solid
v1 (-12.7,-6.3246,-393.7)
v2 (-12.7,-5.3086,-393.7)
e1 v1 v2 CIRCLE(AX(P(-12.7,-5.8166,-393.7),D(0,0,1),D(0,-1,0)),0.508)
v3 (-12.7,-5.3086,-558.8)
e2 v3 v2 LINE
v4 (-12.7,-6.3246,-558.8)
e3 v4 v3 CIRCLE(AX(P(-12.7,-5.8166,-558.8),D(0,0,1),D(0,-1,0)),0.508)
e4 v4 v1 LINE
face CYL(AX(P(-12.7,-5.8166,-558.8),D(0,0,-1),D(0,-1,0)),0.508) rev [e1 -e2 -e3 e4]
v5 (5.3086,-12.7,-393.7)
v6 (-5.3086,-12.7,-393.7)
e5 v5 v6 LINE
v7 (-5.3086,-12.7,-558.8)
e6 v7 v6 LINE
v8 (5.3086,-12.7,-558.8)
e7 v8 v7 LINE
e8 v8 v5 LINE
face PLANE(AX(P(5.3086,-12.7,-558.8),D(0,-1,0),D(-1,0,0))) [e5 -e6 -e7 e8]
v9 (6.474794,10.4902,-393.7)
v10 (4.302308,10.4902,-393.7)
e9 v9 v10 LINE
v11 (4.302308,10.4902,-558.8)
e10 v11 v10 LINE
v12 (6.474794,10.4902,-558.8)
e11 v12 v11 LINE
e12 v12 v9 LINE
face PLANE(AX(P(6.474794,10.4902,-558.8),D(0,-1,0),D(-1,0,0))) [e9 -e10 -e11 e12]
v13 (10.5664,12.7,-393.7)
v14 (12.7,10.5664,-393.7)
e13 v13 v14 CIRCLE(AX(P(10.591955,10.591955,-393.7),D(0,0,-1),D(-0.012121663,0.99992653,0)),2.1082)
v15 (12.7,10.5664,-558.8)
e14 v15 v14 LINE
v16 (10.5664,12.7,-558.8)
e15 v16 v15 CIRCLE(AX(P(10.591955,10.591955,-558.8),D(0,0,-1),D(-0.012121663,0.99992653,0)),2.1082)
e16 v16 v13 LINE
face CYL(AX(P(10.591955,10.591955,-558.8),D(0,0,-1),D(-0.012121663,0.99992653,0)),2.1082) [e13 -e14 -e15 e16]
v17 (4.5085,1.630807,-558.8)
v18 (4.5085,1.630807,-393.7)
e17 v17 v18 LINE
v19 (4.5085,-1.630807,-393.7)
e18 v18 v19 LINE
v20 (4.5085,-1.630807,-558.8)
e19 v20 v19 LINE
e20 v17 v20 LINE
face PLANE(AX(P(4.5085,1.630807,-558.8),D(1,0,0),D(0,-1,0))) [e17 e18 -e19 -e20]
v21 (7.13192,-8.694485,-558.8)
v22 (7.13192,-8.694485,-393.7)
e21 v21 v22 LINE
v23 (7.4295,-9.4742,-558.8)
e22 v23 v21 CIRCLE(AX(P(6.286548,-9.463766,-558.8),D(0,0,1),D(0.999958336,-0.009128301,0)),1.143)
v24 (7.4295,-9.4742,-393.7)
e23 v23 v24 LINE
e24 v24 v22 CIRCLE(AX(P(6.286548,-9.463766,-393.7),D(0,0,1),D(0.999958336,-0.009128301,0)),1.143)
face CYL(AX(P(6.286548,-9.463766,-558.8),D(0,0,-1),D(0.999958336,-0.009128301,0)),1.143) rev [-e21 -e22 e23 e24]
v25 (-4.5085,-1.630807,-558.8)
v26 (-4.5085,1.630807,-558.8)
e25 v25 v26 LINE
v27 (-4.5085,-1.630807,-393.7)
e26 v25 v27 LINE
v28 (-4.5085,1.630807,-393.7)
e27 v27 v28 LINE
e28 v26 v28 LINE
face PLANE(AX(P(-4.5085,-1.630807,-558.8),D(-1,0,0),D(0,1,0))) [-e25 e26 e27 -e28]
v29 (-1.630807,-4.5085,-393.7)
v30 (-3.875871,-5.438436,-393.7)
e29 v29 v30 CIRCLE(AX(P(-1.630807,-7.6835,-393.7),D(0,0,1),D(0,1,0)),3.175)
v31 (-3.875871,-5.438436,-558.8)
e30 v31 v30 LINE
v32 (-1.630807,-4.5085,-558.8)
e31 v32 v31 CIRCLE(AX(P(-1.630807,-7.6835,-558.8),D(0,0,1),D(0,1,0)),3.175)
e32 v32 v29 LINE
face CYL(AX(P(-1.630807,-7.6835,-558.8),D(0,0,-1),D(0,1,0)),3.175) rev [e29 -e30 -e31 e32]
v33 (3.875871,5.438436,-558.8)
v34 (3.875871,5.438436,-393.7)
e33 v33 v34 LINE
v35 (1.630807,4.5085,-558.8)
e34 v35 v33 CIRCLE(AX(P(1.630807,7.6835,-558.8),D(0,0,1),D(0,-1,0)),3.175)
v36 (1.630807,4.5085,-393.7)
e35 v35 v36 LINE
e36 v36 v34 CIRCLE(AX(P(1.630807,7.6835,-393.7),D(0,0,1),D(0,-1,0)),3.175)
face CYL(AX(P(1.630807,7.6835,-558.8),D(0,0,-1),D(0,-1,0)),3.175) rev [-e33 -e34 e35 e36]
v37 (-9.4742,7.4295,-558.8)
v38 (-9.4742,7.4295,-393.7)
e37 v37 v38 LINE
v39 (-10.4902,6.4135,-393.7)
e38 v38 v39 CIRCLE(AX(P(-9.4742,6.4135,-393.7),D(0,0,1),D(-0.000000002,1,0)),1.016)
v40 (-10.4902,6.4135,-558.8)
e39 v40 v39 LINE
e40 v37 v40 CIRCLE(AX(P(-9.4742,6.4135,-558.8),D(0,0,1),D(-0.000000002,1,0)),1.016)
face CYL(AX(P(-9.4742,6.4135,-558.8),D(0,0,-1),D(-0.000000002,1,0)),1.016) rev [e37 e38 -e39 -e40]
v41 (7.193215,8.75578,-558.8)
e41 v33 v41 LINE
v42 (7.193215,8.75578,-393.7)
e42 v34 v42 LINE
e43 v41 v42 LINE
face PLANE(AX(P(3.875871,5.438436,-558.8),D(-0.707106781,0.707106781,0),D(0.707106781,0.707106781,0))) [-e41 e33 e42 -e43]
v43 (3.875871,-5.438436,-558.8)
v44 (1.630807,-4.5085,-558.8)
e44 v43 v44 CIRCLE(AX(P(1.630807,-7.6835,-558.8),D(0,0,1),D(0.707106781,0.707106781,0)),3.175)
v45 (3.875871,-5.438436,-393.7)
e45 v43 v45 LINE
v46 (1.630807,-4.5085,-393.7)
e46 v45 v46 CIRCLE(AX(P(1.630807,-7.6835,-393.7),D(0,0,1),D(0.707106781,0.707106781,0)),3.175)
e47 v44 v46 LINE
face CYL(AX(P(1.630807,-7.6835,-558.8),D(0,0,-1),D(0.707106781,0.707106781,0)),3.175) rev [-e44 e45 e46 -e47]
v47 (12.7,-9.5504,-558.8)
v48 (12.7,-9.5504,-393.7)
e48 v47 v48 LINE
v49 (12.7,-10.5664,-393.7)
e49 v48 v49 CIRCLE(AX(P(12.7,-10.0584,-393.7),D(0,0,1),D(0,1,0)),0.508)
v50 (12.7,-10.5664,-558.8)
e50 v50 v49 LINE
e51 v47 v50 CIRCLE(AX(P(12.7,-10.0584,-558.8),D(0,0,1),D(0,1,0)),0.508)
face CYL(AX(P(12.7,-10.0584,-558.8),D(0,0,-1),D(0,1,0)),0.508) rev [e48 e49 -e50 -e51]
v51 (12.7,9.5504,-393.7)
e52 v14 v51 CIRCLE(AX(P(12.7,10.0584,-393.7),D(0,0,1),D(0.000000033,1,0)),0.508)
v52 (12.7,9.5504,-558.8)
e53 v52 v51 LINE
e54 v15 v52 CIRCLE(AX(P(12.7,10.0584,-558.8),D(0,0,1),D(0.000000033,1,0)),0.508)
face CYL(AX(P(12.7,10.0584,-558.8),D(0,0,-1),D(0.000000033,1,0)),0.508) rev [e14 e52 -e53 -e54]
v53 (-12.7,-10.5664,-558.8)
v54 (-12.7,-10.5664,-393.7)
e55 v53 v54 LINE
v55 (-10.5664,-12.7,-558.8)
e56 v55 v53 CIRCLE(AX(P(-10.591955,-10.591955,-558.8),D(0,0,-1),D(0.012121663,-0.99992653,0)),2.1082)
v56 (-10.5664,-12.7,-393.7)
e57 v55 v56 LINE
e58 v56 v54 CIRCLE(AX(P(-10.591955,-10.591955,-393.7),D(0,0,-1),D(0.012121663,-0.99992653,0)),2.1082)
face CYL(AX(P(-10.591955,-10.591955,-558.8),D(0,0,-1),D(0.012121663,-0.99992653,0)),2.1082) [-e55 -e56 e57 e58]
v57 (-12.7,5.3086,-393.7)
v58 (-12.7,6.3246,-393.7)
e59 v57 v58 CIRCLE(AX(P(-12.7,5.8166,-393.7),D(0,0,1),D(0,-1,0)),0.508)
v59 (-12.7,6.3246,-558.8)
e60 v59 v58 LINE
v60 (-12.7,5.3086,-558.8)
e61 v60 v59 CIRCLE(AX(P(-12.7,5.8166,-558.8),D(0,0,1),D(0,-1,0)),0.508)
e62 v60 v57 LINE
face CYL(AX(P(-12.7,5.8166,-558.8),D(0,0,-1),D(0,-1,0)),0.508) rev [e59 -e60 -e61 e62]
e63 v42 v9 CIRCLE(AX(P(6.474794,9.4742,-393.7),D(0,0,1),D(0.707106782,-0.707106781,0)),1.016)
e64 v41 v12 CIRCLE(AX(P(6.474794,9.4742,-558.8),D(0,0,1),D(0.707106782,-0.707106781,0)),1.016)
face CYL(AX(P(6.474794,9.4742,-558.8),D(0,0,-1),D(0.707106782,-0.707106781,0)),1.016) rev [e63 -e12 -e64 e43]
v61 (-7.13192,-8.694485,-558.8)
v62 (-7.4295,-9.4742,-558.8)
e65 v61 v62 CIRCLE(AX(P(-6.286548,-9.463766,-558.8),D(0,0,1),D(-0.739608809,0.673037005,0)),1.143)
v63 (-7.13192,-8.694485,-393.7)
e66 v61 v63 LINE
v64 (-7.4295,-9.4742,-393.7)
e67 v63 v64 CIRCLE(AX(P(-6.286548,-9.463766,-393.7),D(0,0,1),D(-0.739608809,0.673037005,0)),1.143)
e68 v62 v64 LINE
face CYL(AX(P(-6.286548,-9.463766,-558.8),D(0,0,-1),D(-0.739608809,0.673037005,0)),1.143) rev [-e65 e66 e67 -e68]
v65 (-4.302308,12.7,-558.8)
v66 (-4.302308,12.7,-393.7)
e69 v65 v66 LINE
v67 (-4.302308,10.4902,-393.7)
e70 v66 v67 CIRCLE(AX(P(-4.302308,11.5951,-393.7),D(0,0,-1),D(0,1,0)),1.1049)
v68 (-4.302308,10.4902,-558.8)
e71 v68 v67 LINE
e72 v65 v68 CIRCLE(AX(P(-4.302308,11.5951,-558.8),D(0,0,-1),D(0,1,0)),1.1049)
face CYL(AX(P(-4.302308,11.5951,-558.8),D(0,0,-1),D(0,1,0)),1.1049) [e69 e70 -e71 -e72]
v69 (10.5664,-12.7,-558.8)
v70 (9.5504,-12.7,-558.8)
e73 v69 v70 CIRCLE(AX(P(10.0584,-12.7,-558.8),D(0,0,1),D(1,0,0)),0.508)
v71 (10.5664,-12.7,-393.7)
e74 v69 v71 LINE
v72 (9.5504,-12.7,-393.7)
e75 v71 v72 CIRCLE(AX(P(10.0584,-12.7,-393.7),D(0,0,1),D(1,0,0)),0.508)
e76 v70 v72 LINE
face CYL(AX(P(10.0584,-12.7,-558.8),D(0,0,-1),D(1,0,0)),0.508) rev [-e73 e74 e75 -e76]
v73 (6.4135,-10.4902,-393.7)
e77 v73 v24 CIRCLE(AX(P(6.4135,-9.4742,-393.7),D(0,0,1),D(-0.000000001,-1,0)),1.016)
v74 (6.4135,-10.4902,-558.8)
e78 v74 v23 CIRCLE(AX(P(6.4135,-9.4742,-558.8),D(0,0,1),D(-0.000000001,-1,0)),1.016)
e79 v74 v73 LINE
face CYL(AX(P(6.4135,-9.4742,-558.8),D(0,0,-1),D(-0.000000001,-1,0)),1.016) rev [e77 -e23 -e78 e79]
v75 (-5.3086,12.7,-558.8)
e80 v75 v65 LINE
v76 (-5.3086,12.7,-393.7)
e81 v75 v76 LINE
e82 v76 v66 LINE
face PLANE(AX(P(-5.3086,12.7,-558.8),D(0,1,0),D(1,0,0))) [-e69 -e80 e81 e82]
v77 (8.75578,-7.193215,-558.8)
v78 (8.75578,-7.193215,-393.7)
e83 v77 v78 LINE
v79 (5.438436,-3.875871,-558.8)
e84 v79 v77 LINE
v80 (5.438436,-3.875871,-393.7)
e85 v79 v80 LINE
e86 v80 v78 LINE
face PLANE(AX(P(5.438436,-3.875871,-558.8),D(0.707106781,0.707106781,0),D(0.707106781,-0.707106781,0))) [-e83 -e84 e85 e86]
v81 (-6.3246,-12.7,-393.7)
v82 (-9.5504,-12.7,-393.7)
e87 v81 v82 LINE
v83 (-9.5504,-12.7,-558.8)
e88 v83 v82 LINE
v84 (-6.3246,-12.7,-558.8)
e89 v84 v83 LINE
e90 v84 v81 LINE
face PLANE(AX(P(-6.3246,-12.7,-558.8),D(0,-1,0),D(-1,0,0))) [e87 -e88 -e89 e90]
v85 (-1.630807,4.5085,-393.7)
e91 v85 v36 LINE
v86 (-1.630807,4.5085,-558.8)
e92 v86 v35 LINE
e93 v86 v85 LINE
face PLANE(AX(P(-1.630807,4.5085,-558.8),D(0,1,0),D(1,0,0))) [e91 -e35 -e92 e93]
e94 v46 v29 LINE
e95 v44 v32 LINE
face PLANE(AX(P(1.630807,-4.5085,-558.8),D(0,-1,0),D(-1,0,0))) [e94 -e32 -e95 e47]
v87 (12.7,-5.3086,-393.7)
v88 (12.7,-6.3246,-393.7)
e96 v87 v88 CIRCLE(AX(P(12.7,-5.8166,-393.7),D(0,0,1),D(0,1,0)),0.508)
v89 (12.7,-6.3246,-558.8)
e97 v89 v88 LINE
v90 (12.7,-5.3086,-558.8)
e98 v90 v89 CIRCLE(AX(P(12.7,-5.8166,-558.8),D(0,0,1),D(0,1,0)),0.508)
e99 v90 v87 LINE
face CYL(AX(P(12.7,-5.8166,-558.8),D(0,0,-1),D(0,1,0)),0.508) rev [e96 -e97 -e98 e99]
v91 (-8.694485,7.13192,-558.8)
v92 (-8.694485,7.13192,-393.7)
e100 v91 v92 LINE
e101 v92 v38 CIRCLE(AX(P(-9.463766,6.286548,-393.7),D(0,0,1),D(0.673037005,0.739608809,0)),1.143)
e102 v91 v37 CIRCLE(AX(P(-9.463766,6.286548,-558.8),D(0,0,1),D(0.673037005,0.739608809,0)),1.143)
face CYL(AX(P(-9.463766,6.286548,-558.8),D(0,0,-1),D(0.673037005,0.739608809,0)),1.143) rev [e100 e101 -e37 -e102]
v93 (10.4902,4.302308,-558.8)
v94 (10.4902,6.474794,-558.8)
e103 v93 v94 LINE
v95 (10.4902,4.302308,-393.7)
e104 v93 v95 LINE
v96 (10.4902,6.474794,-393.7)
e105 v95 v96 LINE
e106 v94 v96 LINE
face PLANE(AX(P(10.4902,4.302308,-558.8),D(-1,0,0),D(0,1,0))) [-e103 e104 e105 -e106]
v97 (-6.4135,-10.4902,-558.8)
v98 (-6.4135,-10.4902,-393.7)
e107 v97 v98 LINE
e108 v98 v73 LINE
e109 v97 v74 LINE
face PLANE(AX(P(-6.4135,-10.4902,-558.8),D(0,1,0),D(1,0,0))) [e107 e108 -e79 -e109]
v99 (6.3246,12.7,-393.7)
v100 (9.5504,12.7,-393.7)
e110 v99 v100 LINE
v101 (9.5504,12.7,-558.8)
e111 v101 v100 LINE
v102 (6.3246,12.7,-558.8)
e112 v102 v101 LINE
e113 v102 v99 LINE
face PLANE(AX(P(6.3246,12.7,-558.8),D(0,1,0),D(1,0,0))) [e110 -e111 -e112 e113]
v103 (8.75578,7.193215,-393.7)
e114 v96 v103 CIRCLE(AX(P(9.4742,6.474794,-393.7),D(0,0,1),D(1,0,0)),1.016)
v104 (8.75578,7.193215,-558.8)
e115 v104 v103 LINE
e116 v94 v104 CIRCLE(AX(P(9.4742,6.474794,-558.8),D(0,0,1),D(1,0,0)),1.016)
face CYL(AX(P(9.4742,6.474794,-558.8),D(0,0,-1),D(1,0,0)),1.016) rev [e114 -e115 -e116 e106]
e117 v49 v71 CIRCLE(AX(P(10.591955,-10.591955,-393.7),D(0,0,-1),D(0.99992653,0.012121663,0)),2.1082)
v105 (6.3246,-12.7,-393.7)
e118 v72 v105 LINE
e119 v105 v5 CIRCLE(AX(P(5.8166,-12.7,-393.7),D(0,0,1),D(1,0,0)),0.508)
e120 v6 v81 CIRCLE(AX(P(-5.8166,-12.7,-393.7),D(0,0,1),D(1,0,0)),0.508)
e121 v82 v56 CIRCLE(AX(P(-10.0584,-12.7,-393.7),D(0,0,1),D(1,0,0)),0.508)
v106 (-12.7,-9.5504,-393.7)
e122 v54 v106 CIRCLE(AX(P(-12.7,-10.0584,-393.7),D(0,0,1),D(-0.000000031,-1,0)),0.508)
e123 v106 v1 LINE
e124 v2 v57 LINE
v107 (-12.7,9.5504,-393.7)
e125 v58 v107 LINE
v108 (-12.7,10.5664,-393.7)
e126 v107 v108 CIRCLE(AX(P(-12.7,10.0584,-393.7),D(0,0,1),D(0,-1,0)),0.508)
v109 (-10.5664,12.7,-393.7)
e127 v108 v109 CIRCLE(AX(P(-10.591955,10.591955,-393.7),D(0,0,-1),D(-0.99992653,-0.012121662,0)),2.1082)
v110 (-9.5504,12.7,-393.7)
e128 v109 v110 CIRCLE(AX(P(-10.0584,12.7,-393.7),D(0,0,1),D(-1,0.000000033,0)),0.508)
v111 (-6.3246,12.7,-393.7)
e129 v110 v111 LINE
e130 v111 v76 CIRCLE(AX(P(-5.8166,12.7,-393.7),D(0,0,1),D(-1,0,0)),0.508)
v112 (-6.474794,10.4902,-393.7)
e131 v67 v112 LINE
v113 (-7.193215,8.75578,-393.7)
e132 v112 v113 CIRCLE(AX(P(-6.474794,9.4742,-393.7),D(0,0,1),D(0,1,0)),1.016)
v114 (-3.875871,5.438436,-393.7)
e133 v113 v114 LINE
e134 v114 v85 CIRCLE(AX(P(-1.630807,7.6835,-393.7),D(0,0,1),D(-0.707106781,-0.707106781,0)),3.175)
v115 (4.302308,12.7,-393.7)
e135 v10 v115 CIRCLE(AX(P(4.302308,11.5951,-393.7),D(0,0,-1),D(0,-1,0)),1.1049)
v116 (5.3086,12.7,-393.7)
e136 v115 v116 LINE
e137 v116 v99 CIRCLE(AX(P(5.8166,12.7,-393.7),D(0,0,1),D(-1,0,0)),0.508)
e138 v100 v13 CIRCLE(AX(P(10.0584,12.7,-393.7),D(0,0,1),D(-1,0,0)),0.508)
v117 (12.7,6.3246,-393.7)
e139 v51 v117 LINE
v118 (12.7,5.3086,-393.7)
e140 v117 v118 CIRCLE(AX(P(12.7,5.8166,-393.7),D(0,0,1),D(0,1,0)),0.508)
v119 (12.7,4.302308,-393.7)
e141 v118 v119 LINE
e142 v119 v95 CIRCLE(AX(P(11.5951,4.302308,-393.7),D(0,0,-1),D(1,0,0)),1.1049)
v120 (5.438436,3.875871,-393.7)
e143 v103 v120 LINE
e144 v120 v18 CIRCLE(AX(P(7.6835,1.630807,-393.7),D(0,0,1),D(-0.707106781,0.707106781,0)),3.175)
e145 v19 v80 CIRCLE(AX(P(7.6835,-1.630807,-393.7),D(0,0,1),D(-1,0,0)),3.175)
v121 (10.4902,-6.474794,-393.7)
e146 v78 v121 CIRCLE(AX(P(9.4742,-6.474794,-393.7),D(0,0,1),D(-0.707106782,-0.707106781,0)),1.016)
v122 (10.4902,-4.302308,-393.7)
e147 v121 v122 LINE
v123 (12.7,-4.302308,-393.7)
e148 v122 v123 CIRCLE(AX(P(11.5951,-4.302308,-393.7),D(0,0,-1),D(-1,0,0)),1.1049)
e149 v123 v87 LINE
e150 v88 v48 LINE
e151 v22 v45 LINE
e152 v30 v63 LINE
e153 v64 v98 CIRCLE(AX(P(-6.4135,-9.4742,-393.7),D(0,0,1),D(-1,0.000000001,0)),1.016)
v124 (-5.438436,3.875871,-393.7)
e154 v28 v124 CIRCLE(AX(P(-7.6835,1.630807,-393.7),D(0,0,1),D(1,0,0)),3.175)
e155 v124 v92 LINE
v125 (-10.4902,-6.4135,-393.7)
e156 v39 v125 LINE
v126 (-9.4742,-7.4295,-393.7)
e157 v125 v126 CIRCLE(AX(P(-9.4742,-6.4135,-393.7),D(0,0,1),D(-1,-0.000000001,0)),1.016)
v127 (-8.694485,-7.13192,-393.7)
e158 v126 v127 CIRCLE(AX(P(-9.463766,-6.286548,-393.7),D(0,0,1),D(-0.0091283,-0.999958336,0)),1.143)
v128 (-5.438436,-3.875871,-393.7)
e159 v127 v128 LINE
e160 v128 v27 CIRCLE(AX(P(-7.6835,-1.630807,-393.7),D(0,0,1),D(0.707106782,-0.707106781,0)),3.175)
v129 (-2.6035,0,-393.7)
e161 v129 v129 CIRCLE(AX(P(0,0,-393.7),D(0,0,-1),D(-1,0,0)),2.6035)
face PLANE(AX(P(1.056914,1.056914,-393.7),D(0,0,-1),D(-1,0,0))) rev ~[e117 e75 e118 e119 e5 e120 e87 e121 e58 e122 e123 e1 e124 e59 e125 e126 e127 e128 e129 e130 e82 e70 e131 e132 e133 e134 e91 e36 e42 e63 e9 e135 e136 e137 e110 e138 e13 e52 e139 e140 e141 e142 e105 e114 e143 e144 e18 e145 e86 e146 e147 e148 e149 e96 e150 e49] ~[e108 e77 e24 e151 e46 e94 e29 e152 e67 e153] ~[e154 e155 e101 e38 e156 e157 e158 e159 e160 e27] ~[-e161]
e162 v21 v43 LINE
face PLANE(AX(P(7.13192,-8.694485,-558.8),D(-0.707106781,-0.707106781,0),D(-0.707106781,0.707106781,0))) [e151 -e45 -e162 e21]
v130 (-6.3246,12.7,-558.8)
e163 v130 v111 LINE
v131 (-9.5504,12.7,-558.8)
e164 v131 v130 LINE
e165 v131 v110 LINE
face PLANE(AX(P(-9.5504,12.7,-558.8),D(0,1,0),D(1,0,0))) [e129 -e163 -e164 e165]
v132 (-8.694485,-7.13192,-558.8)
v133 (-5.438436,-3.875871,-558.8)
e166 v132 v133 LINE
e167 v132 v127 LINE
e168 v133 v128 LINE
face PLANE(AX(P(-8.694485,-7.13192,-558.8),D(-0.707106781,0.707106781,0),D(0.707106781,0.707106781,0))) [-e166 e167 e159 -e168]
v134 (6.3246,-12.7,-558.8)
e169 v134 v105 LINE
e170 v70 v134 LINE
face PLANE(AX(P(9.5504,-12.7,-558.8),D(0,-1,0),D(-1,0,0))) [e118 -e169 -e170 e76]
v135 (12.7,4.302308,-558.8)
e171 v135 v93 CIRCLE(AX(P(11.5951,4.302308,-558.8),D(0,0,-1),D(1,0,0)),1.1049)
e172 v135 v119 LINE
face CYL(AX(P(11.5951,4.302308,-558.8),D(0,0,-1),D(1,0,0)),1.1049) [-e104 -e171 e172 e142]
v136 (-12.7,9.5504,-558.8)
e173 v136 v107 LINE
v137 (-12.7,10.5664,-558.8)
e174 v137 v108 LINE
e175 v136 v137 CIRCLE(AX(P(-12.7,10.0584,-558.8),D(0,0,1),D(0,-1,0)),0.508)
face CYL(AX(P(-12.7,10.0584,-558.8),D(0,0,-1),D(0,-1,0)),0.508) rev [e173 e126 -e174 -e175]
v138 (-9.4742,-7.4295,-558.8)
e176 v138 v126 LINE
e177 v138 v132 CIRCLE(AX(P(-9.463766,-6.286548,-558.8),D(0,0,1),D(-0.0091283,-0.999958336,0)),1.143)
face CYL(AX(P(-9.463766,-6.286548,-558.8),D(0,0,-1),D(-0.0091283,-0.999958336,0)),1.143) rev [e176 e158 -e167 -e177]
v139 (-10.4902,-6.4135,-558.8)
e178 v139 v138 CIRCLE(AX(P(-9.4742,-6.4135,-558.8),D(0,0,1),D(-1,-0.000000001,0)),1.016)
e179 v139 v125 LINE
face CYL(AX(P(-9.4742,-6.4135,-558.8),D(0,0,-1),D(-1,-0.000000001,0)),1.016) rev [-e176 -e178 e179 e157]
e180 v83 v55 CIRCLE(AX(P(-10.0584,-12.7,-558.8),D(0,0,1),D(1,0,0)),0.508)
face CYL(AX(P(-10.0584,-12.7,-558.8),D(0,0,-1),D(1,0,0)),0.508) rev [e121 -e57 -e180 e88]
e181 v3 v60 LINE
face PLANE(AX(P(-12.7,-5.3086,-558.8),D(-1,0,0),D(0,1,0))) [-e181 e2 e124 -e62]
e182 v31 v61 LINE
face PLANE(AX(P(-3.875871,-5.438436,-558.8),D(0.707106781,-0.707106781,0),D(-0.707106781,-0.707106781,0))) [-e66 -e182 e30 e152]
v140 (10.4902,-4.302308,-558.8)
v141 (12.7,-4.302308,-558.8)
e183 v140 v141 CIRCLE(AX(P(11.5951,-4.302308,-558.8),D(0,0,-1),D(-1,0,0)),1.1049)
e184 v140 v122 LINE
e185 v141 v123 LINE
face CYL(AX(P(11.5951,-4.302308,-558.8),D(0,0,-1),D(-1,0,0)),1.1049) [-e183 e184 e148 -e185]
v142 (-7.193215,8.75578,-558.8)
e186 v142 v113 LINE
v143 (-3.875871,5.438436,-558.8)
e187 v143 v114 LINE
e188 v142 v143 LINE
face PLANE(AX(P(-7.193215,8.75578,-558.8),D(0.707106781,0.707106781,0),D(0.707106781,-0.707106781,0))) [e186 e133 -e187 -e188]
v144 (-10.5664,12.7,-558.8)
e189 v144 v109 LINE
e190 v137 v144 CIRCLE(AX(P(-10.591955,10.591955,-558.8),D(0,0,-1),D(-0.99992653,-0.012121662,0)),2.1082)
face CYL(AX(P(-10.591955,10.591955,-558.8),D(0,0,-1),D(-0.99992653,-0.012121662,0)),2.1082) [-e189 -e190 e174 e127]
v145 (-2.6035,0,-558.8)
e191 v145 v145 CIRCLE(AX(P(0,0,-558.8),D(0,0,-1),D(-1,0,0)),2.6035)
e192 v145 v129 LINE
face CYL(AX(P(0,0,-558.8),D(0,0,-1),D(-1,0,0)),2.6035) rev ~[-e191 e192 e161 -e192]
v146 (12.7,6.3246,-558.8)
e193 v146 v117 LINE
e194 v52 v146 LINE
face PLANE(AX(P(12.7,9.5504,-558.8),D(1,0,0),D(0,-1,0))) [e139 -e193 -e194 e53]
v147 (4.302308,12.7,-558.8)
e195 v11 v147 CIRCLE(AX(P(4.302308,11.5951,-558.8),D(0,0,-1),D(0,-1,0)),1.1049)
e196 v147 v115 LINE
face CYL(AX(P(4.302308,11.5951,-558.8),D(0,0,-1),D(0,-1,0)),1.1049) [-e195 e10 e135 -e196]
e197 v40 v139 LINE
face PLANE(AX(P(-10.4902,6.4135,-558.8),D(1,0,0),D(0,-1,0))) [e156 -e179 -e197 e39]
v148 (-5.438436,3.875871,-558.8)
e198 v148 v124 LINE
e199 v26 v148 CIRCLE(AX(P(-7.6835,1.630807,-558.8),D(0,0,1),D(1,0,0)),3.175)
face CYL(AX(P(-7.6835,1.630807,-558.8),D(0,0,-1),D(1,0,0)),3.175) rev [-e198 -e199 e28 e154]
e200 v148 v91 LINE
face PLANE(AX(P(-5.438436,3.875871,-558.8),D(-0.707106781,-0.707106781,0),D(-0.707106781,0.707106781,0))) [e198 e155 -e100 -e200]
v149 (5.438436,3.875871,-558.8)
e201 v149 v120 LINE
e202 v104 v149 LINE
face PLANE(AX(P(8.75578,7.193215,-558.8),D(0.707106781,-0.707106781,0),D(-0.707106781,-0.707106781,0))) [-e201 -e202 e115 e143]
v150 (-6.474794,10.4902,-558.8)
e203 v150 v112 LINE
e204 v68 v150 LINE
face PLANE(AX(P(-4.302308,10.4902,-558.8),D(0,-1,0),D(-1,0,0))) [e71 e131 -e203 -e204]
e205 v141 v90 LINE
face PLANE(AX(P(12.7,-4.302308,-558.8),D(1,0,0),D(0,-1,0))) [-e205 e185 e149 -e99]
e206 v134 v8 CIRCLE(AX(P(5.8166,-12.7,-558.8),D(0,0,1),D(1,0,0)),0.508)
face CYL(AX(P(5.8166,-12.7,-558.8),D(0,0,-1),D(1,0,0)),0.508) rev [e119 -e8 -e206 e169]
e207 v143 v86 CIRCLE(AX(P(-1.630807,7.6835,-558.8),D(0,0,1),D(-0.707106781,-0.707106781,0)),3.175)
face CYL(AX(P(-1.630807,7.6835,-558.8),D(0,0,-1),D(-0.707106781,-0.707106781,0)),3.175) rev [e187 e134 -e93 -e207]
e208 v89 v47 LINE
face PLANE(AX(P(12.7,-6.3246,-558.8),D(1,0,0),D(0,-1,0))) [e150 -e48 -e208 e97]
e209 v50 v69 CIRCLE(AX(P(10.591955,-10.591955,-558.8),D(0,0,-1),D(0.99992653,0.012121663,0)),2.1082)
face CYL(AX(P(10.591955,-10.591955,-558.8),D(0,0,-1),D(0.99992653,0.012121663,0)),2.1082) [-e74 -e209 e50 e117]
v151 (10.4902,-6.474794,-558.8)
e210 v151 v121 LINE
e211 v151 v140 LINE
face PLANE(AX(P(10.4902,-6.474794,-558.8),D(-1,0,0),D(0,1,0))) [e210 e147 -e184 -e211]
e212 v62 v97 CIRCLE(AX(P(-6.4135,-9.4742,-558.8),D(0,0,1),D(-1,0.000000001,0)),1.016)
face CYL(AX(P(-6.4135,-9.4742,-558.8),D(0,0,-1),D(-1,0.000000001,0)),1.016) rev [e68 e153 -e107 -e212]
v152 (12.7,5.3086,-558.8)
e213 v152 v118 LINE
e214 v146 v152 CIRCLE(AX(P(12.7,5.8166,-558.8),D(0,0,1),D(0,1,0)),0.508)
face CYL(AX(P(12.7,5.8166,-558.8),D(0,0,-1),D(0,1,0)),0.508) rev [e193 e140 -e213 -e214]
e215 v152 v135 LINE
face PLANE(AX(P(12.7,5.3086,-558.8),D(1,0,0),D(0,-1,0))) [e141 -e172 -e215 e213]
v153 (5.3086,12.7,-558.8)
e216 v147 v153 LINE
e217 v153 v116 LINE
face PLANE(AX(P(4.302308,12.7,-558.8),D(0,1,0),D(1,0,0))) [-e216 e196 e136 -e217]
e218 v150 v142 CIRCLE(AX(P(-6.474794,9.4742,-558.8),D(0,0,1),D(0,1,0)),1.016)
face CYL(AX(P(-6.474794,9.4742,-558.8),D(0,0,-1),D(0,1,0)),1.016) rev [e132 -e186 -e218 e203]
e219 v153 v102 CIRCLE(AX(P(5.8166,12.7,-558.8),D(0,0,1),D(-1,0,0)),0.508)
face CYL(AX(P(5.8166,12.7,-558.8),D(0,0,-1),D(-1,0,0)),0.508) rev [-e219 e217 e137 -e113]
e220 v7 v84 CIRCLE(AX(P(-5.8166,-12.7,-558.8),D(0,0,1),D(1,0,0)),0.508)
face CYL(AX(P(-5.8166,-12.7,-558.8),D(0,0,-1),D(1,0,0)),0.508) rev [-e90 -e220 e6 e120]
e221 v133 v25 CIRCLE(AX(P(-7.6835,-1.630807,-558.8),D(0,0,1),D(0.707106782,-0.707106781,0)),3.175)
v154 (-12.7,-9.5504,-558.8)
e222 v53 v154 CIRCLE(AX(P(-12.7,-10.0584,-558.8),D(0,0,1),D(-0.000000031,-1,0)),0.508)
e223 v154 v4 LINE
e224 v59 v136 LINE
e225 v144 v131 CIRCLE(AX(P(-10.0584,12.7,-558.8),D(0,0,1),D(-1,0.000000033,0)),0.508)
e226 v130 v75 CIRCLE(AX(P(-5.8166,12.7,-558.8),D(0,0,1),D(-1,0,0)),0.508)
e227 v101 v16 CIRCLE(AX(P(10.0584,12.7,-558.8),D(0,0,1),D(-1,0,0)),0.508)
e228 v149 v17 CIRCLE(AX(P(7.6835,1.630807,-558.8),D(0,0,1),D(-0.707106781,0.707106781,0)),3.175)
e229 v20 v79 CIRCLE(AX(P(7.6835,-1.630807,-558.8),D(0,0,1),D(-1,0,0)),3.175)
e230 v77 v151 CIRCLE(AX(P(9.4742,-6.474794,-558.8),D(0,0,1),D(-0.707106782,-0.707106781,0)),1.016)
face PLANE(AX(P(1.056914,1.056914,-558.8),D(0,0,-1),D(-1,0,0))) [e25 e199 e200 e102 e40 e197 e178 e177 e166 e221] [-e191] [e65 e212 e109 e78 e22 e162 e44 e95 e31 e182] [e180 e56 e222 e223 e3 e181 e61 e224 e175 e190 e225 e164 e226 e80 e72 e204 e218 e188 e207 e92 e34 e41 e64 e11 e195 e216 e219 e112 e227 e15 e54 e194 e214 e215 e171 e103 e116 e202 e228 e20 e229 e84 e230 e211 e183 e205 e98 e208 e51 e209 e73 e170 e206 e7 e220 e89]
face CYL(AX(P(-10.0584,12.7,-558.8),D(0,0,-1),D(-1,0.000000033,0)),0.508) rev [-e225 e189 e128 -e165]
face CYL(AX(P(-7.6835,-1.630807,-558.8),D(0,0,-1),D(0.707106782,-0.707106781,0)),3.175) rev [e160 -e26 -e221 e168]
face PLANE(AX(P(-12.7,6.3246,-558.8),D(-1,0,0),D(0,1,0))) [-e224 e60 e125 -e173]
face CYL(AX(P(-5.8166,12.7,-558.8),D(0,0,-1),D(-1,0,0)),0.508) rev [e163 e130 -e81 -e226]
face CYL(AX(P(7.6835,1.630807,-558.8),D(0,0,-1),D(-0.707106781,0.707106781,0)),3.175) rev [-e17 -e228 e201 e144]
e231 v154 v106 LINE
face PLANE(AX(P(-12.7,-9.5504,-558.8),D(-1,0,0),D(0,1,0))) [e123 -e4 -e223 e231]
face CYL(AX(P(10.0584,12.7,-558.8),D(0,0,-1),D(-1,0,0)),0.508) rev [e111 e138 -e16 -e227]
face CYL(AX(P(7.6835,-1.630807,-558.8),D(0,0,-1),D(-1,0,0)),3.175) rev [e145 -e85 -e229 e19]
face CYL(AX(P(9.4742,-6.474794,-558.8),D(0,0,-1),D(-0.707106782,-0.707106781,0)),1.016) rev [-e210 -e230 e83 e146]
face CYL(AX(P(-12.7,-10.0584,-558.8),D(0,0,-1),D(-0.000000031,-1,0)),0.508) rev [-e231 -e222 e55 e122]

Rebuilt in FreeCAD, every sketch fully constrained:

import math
import FreeCAD as App
import Part
import Sketcher
Q = App.Units.Quantity

doc = App.newDocument("Part")
body = doc.addObject("PartDesign::Body", "Body")

sketch1 = body.newObject("Sketcher::SketchObject", "Sketch")
sketch1.AttachmentSupport = (doc.getObject("XY_Plane"), [""])
sketch1.MapMode = "FlatFace"
sketch1.AttachmentOffset = App.Placement(App.Vector(0, 0, -22 * 25.4), App.Rotation())
sketch1.addGeometry(Part.LineSegment(App.Vector(-12.7, -9.6, 0), App.Vector(-12.7, -6.3, 0)), False)
sketch1.addGeometry(Part.ArcOfCircle(Part.Circle(App.Vector(-12.7, -5.8, 0), App.Vector(0, 0, 1), 0.5), math.radians(-90), math.radians(90)), False)
sketch1.addGeometry(Part.LineSegment(App.Vector(-12.7, -5.3, 0), App.Vector(-12.7, 5.3, 0)), False)
sketch1.addGeometry(Part.ArcOfCircle(Part.Circle(App.Vector(-12.7, 5.8, 0), App.Vector(0, 0, 1), 0.5), math.radians(-90), math.radians(90)), False)
sketch1.addGeometry(Part.LineSegment(App.Vector(-12.7, 6.3, 0), App.Vector(-12.7, 9.6, 0)), False)
sketch1.addGeometry(Part.ArcOfCircle(Part.Circle(App.Vector(-12.7, 10.1, 0), App.Vector(0, 0, 1), 0.5), math.radians(-90), math.radians(90)), False)
sketch1.addGeometry(Part.ArcOfCircle(Part.Circle(App.Vector(-10.6, 10.6, 0), App.Vector(0, 0, 1), 2.1), math.radians(89), math.radians(181)), False)
sketch1.addGeometry(Part.ArcOfCircle(Part.Circle(App.Vector(-10.1, 12.7, 0), App.Vector(0, 0, 1), 0.5), math.radians(180), math.radians(360)), False)
sketch1.addGeometry(Part.LineSegment(App.Vector(-9.6, 12.7, 0), App.Vector(-6.3, 12.7, 0)), False)
sketch1.addGeometry(Part.ArcOfCircle(Part.Circle(App.Vector(-5.8, 12.7, 0), App.Vector(0, 0, 1), 0.5), math.radians(180), math.radians(360)), False)
sketch1.addGeometry(Part.LineSegment(App.Vector(-5.3, 12.7, 0), App.Vector(-4.3, 12.7, 0)), False)
sketch1.addGeometry(Part.ArcOfCircle(Part.Circle(App.Vector(-4.3, 11.6, 0), App.Vector(0, 0, 1), 1.1), math.radians(-90), math.radians(90)), False)
sketch1.addGeometry(Part.LineSegment(App.Vector(-4.3, 10.5, 0), App.Vector(-6.5, 10.5, 0)), False)
sketch1.addGeometry(Part.ArcOfCircle(Part.Circle(App.Vector(-6.5, 9.5, 0), App.Vector(0, 0, 1), 1), math.radians(90), math.radians(225)), False)
sketch1.addGeometry(Part.LineSegment(App.Vector(-7.2, 8.8, 0), App.Vector(-3.9, 5.4, 0)), False)
sketch1.addGeometry(Part.ArcOfCircle(Part.Circle(App.Vector(-1.6, 7.7, 0), App.Vector(0, 0, 1), 3.2), math.radians(-135), math.radians(-90)), False)
sketch1.addGeometry(Part.LineSegment(App.Vector(-1.6, 4.5, 0), App.Vector(1.6, 4.5, 0)), False)
sketch1.addGeometry(Part.ArcOfCircle(Part.Circle(App.Vector(1.6, 7.7, 0), App.Vector(0, 0, 1), 3.2), math.radians(-90), math.radians(-45)), False)
sketch1.addGeometry(Part.LineSegment(App.Vector(3.9, 5.4, 0), App.Vector(7.2, 8.8, 0)), False)
sketch1.addGeometry(Part.ArcOfCircle(Part.Circle(App.Vector(6.5, 9.5, 0), App.Vector(0, 0, 1), 1), math.radians(-45), math.radians(90)), False)
sketch1.addGeometry(Part.LineSegment(App.Vector(6.5, 10.5, 0), App.Vector(4.3, 10.5, 0)), False)
sketch1.addGeometry(Part.ArcOfCircle(Part.Circle(App.Vector(4.3, 11.6, 0), App.Vector(0, 0, 1), 1.1), math.radians(90), math.radians(270)), False)
sketch1.addGeometry(Part.LineSegment(App.Vector(4.3, 12.7, 0), App.Vector(5.3, 12.7, 0)), False)
sketch1.addGeometry(Part.ArcOfCircle(Part.Circle(App.Vector(5.8, 12.7, 0), App.Vector(0, 0, 1), 0.5), math.radians(180), math.radians(360)), False)
sketch1.addGeometry(Part.LineSegment(App.Vector(6.3, 12.7, 0), App.Vector(9.6, 12.7, 0)), False)
sketch1.addGeometry(Part.ArcOfCircle(Part.Circle(App.Vector(10.1, 12.7, 0), App.Vector(0, 0, 1), 0.5), math.radians(180), math.radians(360)), False)
sketch1.addGeometry(Part.ArcOfCircle(Part.Circle(App.Vector(10.6, 10.6, 0), App.Vector(0, 0, 1), 2.1), math.radians(-1), math.radians(91)), False)
sketch1.addGeometry(Part.ArcOfCircle(Part.Circle(App.Vector(12.7, 10.1, 0), App.Vector(0, 0, 1), 0.5), math.radians(90), math.radians(270)), False)
sketch1.addGeometry(Part.LineSegment(App.Vector(12.7, 9.6, 0), App.Vector(12.7, 6.3, 0)), False)
sketch1.addGeometry(Part.ArcOfCircle(Part.Circle(App.Vector(12.7, 5.8, 0), App.Vector(0, 0, 1), 0.5), math.radians(90), math.radians(270)), False)
sketch1.addGeometry(Part.LineSegment(App.Vector(12.7, 5.3, 0), App.Vector(12.7, 4.3, 0)), False)
sketch1.addGeometry(Part.ArcOfCircle(Part.Circle(App.Vector(11.6, 4.3, 0), App.Vector(0, 0, 1), 1.1), math.radians(180), math.radians(360)), False)
sketch1.addGeometry(Part.LineSegment(App.Vector(10.5, 4.3, 0), App.Vector(10.5, 6.5, 0)), False)
sketch1.addGeometry(Part.ArcOfCircle(Part.Circle(App.Vector(9.5, 6.5, 0), App.Vector(0, 0, 1), 1), math.radians(0), math.radians(135)), False)
sketch1.addGeometry(Part.LineSegment(App.Vector(8.8, 7.2, 0), App.Vector(5.4, 3.9, 0)), False)
sketch1.addGeometry(Part.ArcOfCircle(Part.Circle(App.Vector(7.7, 1.6, 0), App.Vector(0, 0, 1), 3.2), math.radians(135), math.radians(180)), False)
sketch1.addGeometry(Part.LineSegment(App.Vector(4.5, 1.6, 0), App.Vector(4.5, -1.6, 0)), False)
sketch1.addGeometry(Part.ArcOfCircle(Part.Circle(App.Vector(7.7, -1.6, 0), App.Vector(0, 0, 1), 3.2), math.radians(180), math.radians(225)), False)
sketch1.addGeometry(Part.LineSegment(App.Vector(5.4, -3.9, 0), App.Vector(8.8, -7.2, 0)), False)
sketch1.addGeometry(Part.ArcOfCircle(Part.Circle(App.Vector(9.5, -6.5, 0), App.Vector(0, 0, 1), 1), math.radians(-135), math.radians(0)), False)
sketch1.addGeometry(Part.LineSegment(App.Vector(10.5, -6.5, 0), App.Vector(10.5, -4.3, 0)), False)
sketch1.addGeometry(Part.ArcOfCircle(Part.Circle(App.Vector(11.6, -4.3, 0), App.Vector(0, 0, 1), 1.1), math.radians(0), math.radians(180)), False)
sketch1.addGeometry(Part.LineSegment(App.Vector(12.7, -4.3, 0), App.Vector(12.7, -5.3, 0)), False)
sketch1.addGeometry(Part.ArcOfCircle(Part.Circle(App.Vector(12.7, -5.8, 0), App.Vector(0, 0, 1), 0.5), math.radians(90), math.radians(270)), False)
sketch1.addGeometry(Part.LineSegment(App.Vector(12.7, -6.3, 0), App.Vector(12.7, -9.6, 0)), False)
sketch1.addGeometry(Part.ArcOfCircle(Part.Circle(App.Vector(12.7, -10.1, 0), App.Vector(0, 0, 1), 0.5), math.radians(90), math.radians(270)), False)
sketch1.addGeometry(Part.ArcOfCircle(Part.Circle(App.Vector(10.6, -10.6, 0), App.Vector(0, 0, 1), 2.1), math.radians(-91), math.radians(1)), False)
sketch1.addGeometry(Part.ArcOfCircle(Part.Circle(App.Vector(10.1, -12.7, 0), App.Vector(0, 0, 1), 0.5), math.radians(0), math.radians(180)), False)
sketch1.addGeometry(Part.LineSegment(App.Vector(9.6, -12.7, 0), App.Vector(6.3, -12.7, 0)), False)
sketch1.addGeometry(Part.ArcOfCircle(Part.Circle(App.Vector(5.8, -12.7, 0), App.Vector(0, 0, 1), 0.5), math.radians(0), math.radians(180)), False)
sketch1.addGeometry(Part.LineSegment(App.Vector(5.3, -12.7, 0), App.Vector(-5.3, -12.7, 0)), False)
sketch1.addGeometry(Part.ArcOfCircle(Part.Circle(App.Vector(-5.8, -12.7, 0), App.Vector(0, 0, 1), 0.5), math.radians(0), math.radians(180)), False)
sketch1.addGeometry(Part.LineSegment(App.Vector(-6.3, -12.7, 0), App.Vector(-9.6, -12.7, 0)), False)
sketch1.addGeometry(Part.ArcOfCircle(Part.Circle(App.Vector(-10.1, -12.7, 0), App.Vector(0, 0, 1), 0.5), math.radians(0), math.radians(180)), False)
sketch1.addGeometry(Part.ArcOfCircle(Part.Circle(App.Vector(-10.6, -10.6, 0), App.Vector(0, 0, 1), 2.1), math.radians(179), math.radians(271)), False)
sketch1.addGeometry(Part.ArcOfCircle(Part.Circle(App.Vector(-12.7, -10.1, 0), App.Vector(0, 0, 1), 0.5), math.radians(-90), math.radians(90)), False)
sketch1.addGeometry(Part.ArcOfCircle(Part.Circle(App.Vector(-1.6, -7.7, 0), App.Vector(0, 0, 1), 3.2), math.radians(90), math.radians(135)), False)
sketch1.addGeometry(Part.LineSegment(App.Vector(-3.9, -5.4, 0), App.Vector(-7.1, -8.7, 0)), False)
sketch1.addGeometry(Part.ArcOfCircle(Part.Circle(App.Vector(-6.3, -9.5, 0), App.Vector(0, 0, 1), 1.1), math.radians(138), math.radians(181)), False)
sketch1.addGeometry(Part.ArcOfCircle(Part.Circle(App.Vector(-6.4, -9.5, 0), App.Vector(0, 0, 1), 1), math.radians(180), math.radians(270)), False)
sketch1.addGeometry(Part.LineSegment(App.Vector(-6.4, -10.5, 0), App.Vector(6.4, -10.5, 0)), False)
sketch1.addGeometry(Part.ArcOfCircle(Part.Circle(App.Vector(6.4, -9.5, 0), App.Vector(0, 0, 1), 1), math.radians(-90), math.radians(0)), False)
sketch1.addGeometry(Part.ArcOfCircle(Part.Circle(App.Vector(6.3, -9.5, 0), App.Vector(0, 0, 1), 1.1), math.radians(-1), math.radians(42)), False)
sketch1.addGeometry(Part.LineSegment(App.Vector(7.1, -8.7, 0), App.Vector(3.9, -5.4, 0)), False)
sketch1.addGeometry(Part.ArcOfCircle(Part.Circle(App.Vector(1.6, -7.7, 0), App.Vector(0, 0, 1), 3.2), math.radians(45), math.radians(90)), False)
sketch1.addGeometry(Part.LineSegment(App.Vector(1.6, -4.5, 0), App.Vector(-1.6, -4.5, 0)), False)
sketch1.addGeometry(Part.Circle(App.Vector(0, 0, 0), App.Vector(0, 0, 1), 2.6), False)
sketch1.addGeometry(Part.ArcOfCircle(Part.Circle(App.Vector(-9.5, 6.4, 0), App.Vector(0, 0, 1), 1), math.radians(90), math.radians(180)), False)
sketch1.addGeometry(Part.LineSegment(App.Vector(-10.5, 6.4, 0), App.Vector(-10.5, -6.4, 0)), False)
sketch1.addGeometry(Part.ArcOfCircle(Part.Circle(App.Vector(-9.5, -6.4, 0), App.Vector(0, 0, 1), 1), math.radians(-180), math.radians(-90)), False)
sketch1.addGeometry(Part.ArcOfCircle(Part.Circle(App.Vector(-9.5, -6.3, 0), App.Vector(0, 0, 1), 1.1), math.radians(-91), math.radians(-48)), False)
sketch1.addGeometry(Part.LineSegment(App.Vector(-8.7, -7.1, 0), App.Vector(-5.4, -3.9, 0)), False)
sketch1.addGeometry(Part.ArcOfCircle(Part.Circle(App.Vector(-7.7, -1.6, 0), App.Vector(0, 0, 1), 3.2), math.radians(-45), math.radians(0)), False)
sketch1.addGeometry(Part.LineSegment(App.Vector(-4.5, -1.6, 0), App.Vector(-4.5, 1.6, 0)), False)
sketch1.addGeometry(Part.ArcOfCircle(Part.Circle(App.Vector(-7.7, 1.6, 0), App.Vector(0, 0, 1), 3.2), math.radians(0), math.radians(45)), False)
sketch1.addGeometry(Part.LineSegment(App.Vector(-5.4, 3.9, 0), App.Vector(-8.7, 7.1, 0)), False)
sketch1.addGeometry(Part.ArcOfCircle(Part.Circle(App.Vector(-9.5, 6.3, 0), App.Vector(0, 0, 1), 1.1), math.radians(48), math.radians(91)), False)
sketch1.addConstraint(Sketcher.Constraint("Coincident", 0, 2, 1, 1))
sketch1.addConstraint(Sketcher.Constraint("Coincident", 1, 2, 2, 1))
sketch1.addConstraint(Sketcher.Constraint("Coincident", 2, 2, 3, 1))
sketch1.addConstraint(Sketcher.Constraint("Coincident", 3, 2, 4, 1))
sketch1.addConstraint(Sketcher.Constraint("Coincident", 4, 2, 5, 1))
sketch1.addConstraint(Sketcher.Constraint("Coincident", 5, 2, 6, 2))
sketch1.addConstraint(Sketcher.Constraint("Coincident", 6, 1, 7, 1))
sketch1.addConstraint(Sketcher.Constraint("Coincident", 7, 2, 8, 1))
sketch1.addConstraint(Sketcher.Constraint("Coincident", 8, 2, 9, 1))
sketch1.addConstraint(Sketcher.Constraint("Coincident", 9, 2, 10, 1))
sketch1.addConstraint(Sketcher.Constraint("Tangent", 10, 2, 11, 2))
sketch1.addConstraint(Sketcher.Constraint("Tangent", 11, 1, 12, 1))
sketch1.addConstraint(Sketcher.Constraint("Tangent", 12, 2, 13, 1))
sketch1.addConstraint(Sketcher.Constraint("Tangent", 13, 2, 14, 1))
sketch1.addConstraint(Sketcher.Constraint("Tangent", 14, 2, 15, 1))
sketch1.addConstraint(Sketcher.Constraint("Tangent", 15, 2, 16, 1))
sketch1.addConstraint(Sketcher.Constraint("Tangent", 16, 2, 17, 1))
sketch1.addConstraint(Sketcher.Constraint("Tangent", 17, 2, 18, 1))
sketch1.addConstraint(Sketcher.Constraint("Tangent", 18, 2, 19, 1))
sketch1.addConstraint(Sketcher.Constraint("Tangent", 19, 2, 20, 1))
sketch1.addConstraint(Sketcher.Constraint("Tangent", 20, 2, 21, 2))
sketch1.addConstraint(Sketcher.Constraint("Tangent", 21, 1, 22, 1))
sketch1.addConstraint(Sketcher.Constraint("Coincident", 22, 2, 23, 1))
sketch1.addConstraint(Sketcher.Constraint("Coincident", 23, 2, 24, 1))
sketch1.addConstraint(Sketcher.Constraint("Coincident", 24, 2, 25, 1))
sketch1.addConstraint(Sketcher.Constraint("Coincident", 25, 2, 26, 2))
sketch1.addConstraint(Sketcher.Constraint("Coincident", 26, 1, 27, 1))
sketch1.addConstraint(Sketcher.Constraint("Coincident", 27, 2, 28, 1))
sketch1.addConstraint(Sketcher.Constraint("Coincident", 28, 2, 29, 1))
sketch1.addConstraint(Sketcher.Constraint("Coincident", 29, 2, 30, 1))
sketch1.addConstraint(Sketcher.Constraint("Tangent", 30, 2, 31, 2))
sketch1.addConstraint(Sketcher.Constraint("Tangent", 31, 1, 32, 1))
sketch1.addConstraint(Sketcher.Constraint("Tangent", 32, 2, 33, 1))
sketch1.addConstraint(Sketcher.Constraint("Tangent", 33, 2, 34, 1))
sketch1.addConstraint(Sketcher.Constraint("Tangent", 34, 2, 35, 1))
sketch1.addConstraint(Sketcher.Constraint("Tangent", 35, 2, 36, 1))
sketch1.addConstraint(Sketcher.Constraint("Tangent", 36, 2, 37, 1))
sketch1.addConstraint(Sketcher.Constraint("Tangent", 37, 2, 38, 1))
sketch1.addConstraint(Sketcher.Constraint("Tangent", 38, 2, 39, 1))
sketch1.addConstraint(Sketcher.Constraint("Tangent", 39, 2, 40, 1))
sketch1.addConstraint(Sketcher.Constraint("Tangent", 40, 2, 41, 2))
sketch1.addConstraint(Sketcher.Constraint("Tangent", 41, 1, 42, 1))
sketch1.addConstraint(Sketcher.Constraint("Coincident", 42, 2, 43, 1))
sketch1.addConstraint(Sketcher.Constraint("Coincident", 43, 2, 44, 1))
sketch1.addConstraint(Sketcher.Constraint("Coincident", 44, 2, 45, 1))
sketch1.addConstraint(Sketcher.Constraint("Coincident", 45, 2, 46, 2))
sketch1.addConstraint(Sketcher.Constraint("Coincident", 46, 1, 47, 1))
sketch1.addConstraint(Sketcher.Constraint("Coincident", 47, 2, 48, 1))
sketch1.addConstraint(Sketcher.Constraint("Coincident", 48, 2, 49, 1))
sketch1.addConstraint(Sketcher.Constraint("Coincident", 49, 2, 50, 1))
sketch1.addConstraint(Sketcher.Constraint("Coincident", 50, 2, 51, 1))
sketch1.addConstraint(Sketcher.Constraint("Coincident", 51, 2, 52, 1))
sketch1.addConstraint(Sketcher.Constraint("Coincident", 52, 2, 53, 1))
sketch1.addConstraint(Sketcher.Constraint("Coincident", 53, 2, 54, 2))
sketch1.addConstraint(Sketcher.Constraint("Coincident", 54, 1, 55, 1))
sketch1.addConstraint(Sketcher.Constraint("Coincident", 55, 2, 0, 1))
sketch1.addConstraint(Sketcher.Constraint("Tangent", 56, 2, 57, 1))
sketch1.addConstraint(Sketcher.Constraint("Coincident", 57, 2, 58, 1))
sketch1.addConstraint(Sketcher.Constraint("Coincident", 58, 2, 59, 1))
sketch1.addConstraint(Sketcher.Constraint("Tangent", 59, 2, 60, 1))
sketch1.addConstraint(Sketcher.Constraint("Tangent", 60, 2, 61, 1))
sketch1.addConstraint(Sketcher.Constraint("Coincident", 61, 2, 62, 1))
sketch1.addConstraint(Sketcher.Constraint("Coincident", 62, 2, 63, 1))
sketch1.addConstraint(Sketcher.Constraint("Tangent", 63, 2, 64, 1))
sketch1.addConstraint(Sketcher.Constraint("Tangent", 64, 2, 65, 1))
sketch1.addConstraint(Sketcher.Constraint("Tangent", 65, 2, 56, 1))
sketch1.addConstraint(Sketcher.Constraint("Tangent", 67, 2, 68, 1))
sketch1.addConstraint(Sketcher.Constraint("Tangent", 68, 2, 69, 1))
sketch1.addConstraint(Sketcher.Constraint("Coincident", 69, 2, 70, 1))
sketch1.addConstraint(Sketcher.Constraint("Coincident", 70, 2, 71, 1))
sketch1.addConstraint(Sketcher.Constraint("Tangent", 71, 2, 72, 1))
sketch1.addConstraint(Sketcher.Constraint("Tangent", 72, 2, 73, 1))
sketch1.addConstraint(Sketcher.Constraint("Tangent", 73, 2, 74, 1))
sketch1.addConstraint(Sketcher.Constraint("Tangent", 74, 2, 75, 1))
sketch1.addConstraint(Sketcher.Constraint("Coincident", 75, 2, 76, 1))
sketch1.addConstraint(Sketcher.Constraint("Coincident", 76, 2, 67, 1))
sketch1.addConstraint(Sketcher.Constraint("Vertical", 0))
sketch1.addConstraint(Sketcher.Constraint("Vertical", 2))
sketch1.addConstraint(Sketcher.Constraint("Vertical", 4))
sketch1.addConstraint(Sketcher.Constraint("Horizontal", 8))
sketch1.addConstraint(Sketcher.Constraint("Horizontal", 10))
sketch1.addConstraint(Sketcher.Constraint("Horizontal", 12))
sketch1.addConstraint(Sketcher.Constraint("Horizontal", 16))
sketch1.addConstraint(Sketcher.Constraint("Horizontal", 20))
sketch1.addConstraint(Sketcher.Constraint("Horizontal", 22))
sketch1.addConstraint(Sketcher.Constraint("Horizontal", 24))
sketch1.addConstraint(Sketcher.Constraint("Vertical", 28))
sketch1.addConstraint(Sketcher.Constraint("Vertical", 30))
sketch1.addConstraint(Sketcher.Constraint("Vertical", 32))
sketch1.addConstraint(Sketcher.Constraint("Vertical", 36))
sketch1.addConstraint(Sketcher.Constraint("Vertical", 40))
sketch1.addConstraint(Sketcher.Constraint("Vertical", 42))
sketch1.addConstraint(Sketcher.Constraint("Vertical", 44))
sketch1.addConstraint(Sketcher.Constraint("Horizontal", 48))
sketch1.addConstraint(Sketcher.Constraint("Horizontal", 50))
sketch1.addConstraint(Sketcher.Constraint("Horizontal", 52))
sketch1.addConstraint(Sketcher.Constraint("Horizontal", 60))
sketch1.addConstraint(Sketcher.Constraint("Horizontal", 65))
sketch1.addConstraint(Sketcher.Constraint("Vertical", 68))
sketch1.addConstraint(Sketcher.Constraint("Vertical", 73))
sketch1.addConstraint(Sketcher.Constraint("Coincident", 66, 3, -1, 1))
sketch1.addConstraint(Sketcher.Constraint("Equal", 1, 3))
sketch1.addConstraint(Sketcher.Constraint("Equal", 3, 5))
sketch1.addConstraint(Sketcher.Constraint("Equal", 5, 7))
sketch1.addConstraint(Sketcher.Constraint("Equal", 7, 9))
sketch1.addConstraint(Sketcher.Constraint("Equal", 15, 17))
sketch1.addConstraint(Sketcher.Constraint("Equal", 13, 19))
sketch1.addConstraint(Sketcher.Constraint("Equal", 11, 21))
sketch1.addConstraint(Sketcher.Constraint("Equal", 9, 23))
sketch1.addConstraint(Sketcher.Constraint("Equal", 23, 25))
sketch1.addConstraint(Sketcher.Constraint("Equal", 6, 26))
sketch1.addConstraint(Sketcher.Constraint("Equal", 25, 27))
sketch1.addConstraint(Sketcher.Constraint("Equal", 27, 29))
sketch1.addConstraint(Sketcher.Constraint("Equal", 21, 31))
sketch1.addConstraint(Sketcher.Constraint("Equal", 19, 33))
sketch1.addConstraint(Sketcher.Constraint("Equal", 17, 35))
sketch1.addConstraint(Sketcher.Constraint("Equal", 35, 37))
sketch1.addConstraint(Sketcher.Constraint("Equal", 33, 39))
sketch1.addConstraint(Sketcher.Constraint("Equal", 31, 41))
sketch1.addConstraint(Sketcher.Constraint("Equal", 29, 43))
sketch1.addConstraint(Sketcher.Constraint("Equal", 43, 45))
sketch1.addConstraint(Sketcher.Constraint("Equal", 26, 46))
sketch1.addConstraint(Sketcher.Constraint("Equal", 45, 47))
sketch1.addConstraint(Sketcher.Constraint("Equal", 47, 49))
sketch1.addConstraint(Sketcher.Constraint("Equal", 49, 51))
sketch1.addConstraint(Sketcher.Constraint("Equal", 51, 53))
sketch1.addConstraint(Sketcher.Constraint("Equal", 46, 54))
sketch1.addConstraint(Sketcher.Constraint("Equal", 53, 55))
sketch1.addConstraint(Sketcher.Constraint("Equal", 37, 56))
sketch1.addConstraint(Sketcher.Constraint("Equal", 39, 59))
sketch1.addConstraint(Sketcher.Constraint("Equal", 59, 61))
sketch1.addConstraint(Sketcher.Constraint("Equal", 58, 62))
sketch1.addConstraint(Sketcher.Constraint("Equal", 56, 64))
sketch1.addConstraint(Sketcher.Constraint("Equal", 61, 67))
sketch1.addConstraint(Sketcher.Constraint("Equal", 67, 69))
sketch1.addConstraint(Sketcher.Constraint("Equal", 62, 70))
sketch1.addConstraint(Sketcher.Constraint("Equal", 64, 72))
sketch1.addConstraint(Sketcher.Constraint("Equal", 72, 74))
sketch1.addConstraint(Sketcher.Constraint("Equal", 70, 76))
sketch1.addConstraint(Sketcher.Constraint("Symmetric", 1, 3, 29, 3, -1, 1))
sketch1.addConstraint(Sketcher.Constraint("Symmetric", 3, 3, 43, 3, -1, 1))
sketch1.addConstraint(Sketcher.Constraint("Symmetric", 5, 3, 45, 3, -1, 1))
sketch1.addConstraint(Sketcher.Constraint("Symmetric", 6, 3, 46, 3, -1, 1))
sketch1.addConstraint(Sketcher.Constraint("Symmetric", 7, 3, 47, 3, -1, 1))
sketch1.addConstraint(Sketcher.Constraint("Symmetric", 9, 3, 49, 3, -1, 1))
sketch1.addConstraint(Sketcher.Constraint("Symmetric", 23, 3, 51, 3, -1, 1))
sketch1.addConstraint(Sketcher.Constraint("Symmetric", 25, 3, 53, 3, -1, 1))
sketch1.addConstraint(Sketcher.Constraint("Symmetric", 26, 3, 54, 3, -1, 1))
sketch1.addConstraint(Sketcher.Constraint("Symmetric", 27, 3, 55, 3, -1, 1))
sketch1.addConstraint(Sketcher.Constraint("Symmetric", 17, 3, 56, 3, -1, 1))
sketch1.addConstraint(Sketcher.Constraint("Symmetric", 35, 3, 72, 3, -1, 1))
sketch1.addConstraint(Sketcher.Constraint("Symmetric", 14, 2, 63, 2, -1, 1))
sketch1.addConstraint(Sketcher.Constraint("Symmetric", 37, 2, 74, 2, -1, 1))
sketch1.addConstraint(Sketcher.Constraint("Symmetric", 13, 3, 19, 3, -2))
sketch1.addConstraint(Sketcher.Constraint("Symmetric", 9, 3, 23, 3, -2))
sketch1.addConstraint(Sketcher.Constraint("Symmetric", 7, 3, 25, 3, -2))
sketch1.addConstraint(Sketcher.Constraint("Symmetric", 6, 3, 26, 3, -2))
sketch1.addConstraint(Sketcher.Constraint("Symmetric", 5, 3, 27, 3, -2))
sketch1.addConstraint(Sketcher.Constraint("Symmetric", 3, 3, 29, 3, -2))
sketch1.addConstraint(Sketcher.Constraint("Symmetric", 58, 3, 62, 3, -2))
sketch1.addConstraint(Sketcher.Constraint("Symmetric", 56, 2, 63, 2, -2))
sketch1.addConstraint(Sketcher.Constraint("Symmetric", 37, 2, 71, 2, -2))
sketch1.addConstraint(Sketcher.Constraint("Symmetric", 33, 3, 39, 3, -1))
sketch1.addConstraint(Sketcher.Constraint("Symmetric", 70, 3, 76, 3, -1))
sketch1.addConstraint(Sketcher.Constraint("Perpendicular", 14, 18))
sketch1.addConstraint(Sketcher.Constraint("Parallel", 18, 34))
sketch1.addConstraint(Sketcher.Constraint("Horizontal", 7, 3, 9, 3))
sketch1.addConstraint(Sketcher.Constraint("Horizontal", 25, 3, 6, 1))
sketch1.addConstraint(Sketcher.Constraint("Horizontal", 6, 1, 7, 2))
sketch1.addConstraint(Sketcher.Constraint("Horizontal", 8, 2, 9, 2))
sketch1.addConstraint(Sketcher.Constraint("Horizontal", 22, 2, 23, 2))
sketch1.addConstraint(Sketcher.Constraint("Horizontal", 46, 1, 47, 2))
sketch1.addConstraint(Sketcher.Constraint("Horizontal", 48, 2, 49, 2))
sketch1.addConstraint(Sketcher.Constraint("Horizontal", 50, 2, 51, 2))
sketch1.addConstraint(Sketcher.Constraint("Horizontal", 61, 3, 58, 2))
sketch1.addConstraint(Sketcher.Constraint("Horizontal", 58, 2, 61, 2))
sketch1.addConstraint(Sketcher.Constraint("Vertical", 3, 3, 5, 3))
sketch1.addConstraint(Sketcher.Constraint("Vertical", 55, 3, 0, 2))
sketch1.addConstraint(Sketcher.Constraint("Vertical", 0, 2, 1, 2))
sketch1.addConstraint(Sketcher.Constraint("Vertical", 2, 2, 3, 2))
sketch1.addConstraint(Sketcher.Constraint("Vertical", 4, 2, 5, 2))
sketch1.addConstraint(Sketcher.Constraint("Vertical", 26, 1, 27, 2))
sketch1.addConstraint(Sketcher.Constraint("Vertical", 28, 2, 29, 2))
sketch1.addConstraint(Sketcher.Constraint("Vertical", 42, 2, 43, 2))
sketch1.addConstraint(Sketcher.Constraint("Vertical", 67, 3, 69, 2))
sketch1.addConstraint(Sketcher.Constraint("Vertical", 69, 2, 76, 2))
sketch1.addConstraint(Sketcher.Constraint("Equal", 12, 20))
sketch1.addConstraint(Sketcher.Constraint("Equal", 52, 0))
sketch1.addConstraint(Sketcher.Constraint("Equal", 50, 2))
sketch1.addConstraint(Sketcher.Constraint("Equal", 22, 30))
sketch1.addConstraint(Sketcher.Constraint("Equal", 20, 32))
sketch1.addConstraint(Sketcher.Constraint("Equal", 65, 36))
sketch1.addConstraint(Sketcher.Constraint("Equal", 32, 40))
sketch1.addConstraint(Sketcher.Constraint("Equal", 60, 68))
sketch1.addConstraint(Sketcher.Constraint("Equal", 63, 71))
sketch1.addConstraint(Sketcher.Constraint("Radius", 1, Q("0.02 in")))
sketch1.addConstraint(Sketcher.Constraint("Radius", 13, Q("0.04 in")))
sketch1.addConstraint(Sketcher.Constraint("Diameter", 66, Q("0.205 in")))
sketch1.addConstraint(Sketcher.Constraint("Radius", 6, Q("0.083 in")))
sketch1.addConstraint(Sketcher.Constraint("Radius", 15, Q("0.125 in")))
sketch1.addConstraint(Sketcher.Constraint("Radius", 58, Q("0.045 in")))
sketch1.addConstraint(Sketcher.Constraint("DistanceX", 1, 3, -1, 1, Q("0.5 in")))
sketch1.addConstraint(Sketcher.Constraint("DistanceY", -1, 1, 7, 3, Q("0.5 in")))
sketch1.addConstraint(Sketcher.Constraint("Radius", 11, Q("0.0435 in")))
sketch1.addConstraint(Sketcher.Constraint("DistanceX", 8, 1, 8, 2, Q("0.127 in")))
sketch1.addConstraint(Sketcher.Constraint("DistanceX", 50, 2, 50, 1, Q("0.418 in")))
sketch1.addConstraint(Sketcher.Constraint("DistanceX", 60, 1, 60, 2, Q("0.505 in")))
sketch1.addConstraint(Sketcher.Constraint("DistanceY", 59, 3, -1, 1, Q("0.373 in")))
sketch1.addConstraint(Sketcher.Constraint("DistanceX", 67, 3, -1, 1, Q("0.373 in")))
sketch1.addConstraint(Sketcher.Constraint("DistanceY", -1, 1, 15, 3, Q("0.3025 in")))
sketch1.addConstraint(Sketcher.Constraint("Distance", 57, Q("4.604749 mm")))
sketch1.addConstraint(Sketcher.Constraint("DistanceX", 10, 1, 10, 2, Q("1.006292 mm")))
sketch1.addConstraint(Sketcher.Constraint("DistanceX", 12, 2, 12, 1, Q("2.172487 mm")))
pad1 = body.newObject("PartDesign::Pad", "Pad")
pad1.Profile = sketch1
pad1.Length = Q("6.5 in")

doc.recompute()
